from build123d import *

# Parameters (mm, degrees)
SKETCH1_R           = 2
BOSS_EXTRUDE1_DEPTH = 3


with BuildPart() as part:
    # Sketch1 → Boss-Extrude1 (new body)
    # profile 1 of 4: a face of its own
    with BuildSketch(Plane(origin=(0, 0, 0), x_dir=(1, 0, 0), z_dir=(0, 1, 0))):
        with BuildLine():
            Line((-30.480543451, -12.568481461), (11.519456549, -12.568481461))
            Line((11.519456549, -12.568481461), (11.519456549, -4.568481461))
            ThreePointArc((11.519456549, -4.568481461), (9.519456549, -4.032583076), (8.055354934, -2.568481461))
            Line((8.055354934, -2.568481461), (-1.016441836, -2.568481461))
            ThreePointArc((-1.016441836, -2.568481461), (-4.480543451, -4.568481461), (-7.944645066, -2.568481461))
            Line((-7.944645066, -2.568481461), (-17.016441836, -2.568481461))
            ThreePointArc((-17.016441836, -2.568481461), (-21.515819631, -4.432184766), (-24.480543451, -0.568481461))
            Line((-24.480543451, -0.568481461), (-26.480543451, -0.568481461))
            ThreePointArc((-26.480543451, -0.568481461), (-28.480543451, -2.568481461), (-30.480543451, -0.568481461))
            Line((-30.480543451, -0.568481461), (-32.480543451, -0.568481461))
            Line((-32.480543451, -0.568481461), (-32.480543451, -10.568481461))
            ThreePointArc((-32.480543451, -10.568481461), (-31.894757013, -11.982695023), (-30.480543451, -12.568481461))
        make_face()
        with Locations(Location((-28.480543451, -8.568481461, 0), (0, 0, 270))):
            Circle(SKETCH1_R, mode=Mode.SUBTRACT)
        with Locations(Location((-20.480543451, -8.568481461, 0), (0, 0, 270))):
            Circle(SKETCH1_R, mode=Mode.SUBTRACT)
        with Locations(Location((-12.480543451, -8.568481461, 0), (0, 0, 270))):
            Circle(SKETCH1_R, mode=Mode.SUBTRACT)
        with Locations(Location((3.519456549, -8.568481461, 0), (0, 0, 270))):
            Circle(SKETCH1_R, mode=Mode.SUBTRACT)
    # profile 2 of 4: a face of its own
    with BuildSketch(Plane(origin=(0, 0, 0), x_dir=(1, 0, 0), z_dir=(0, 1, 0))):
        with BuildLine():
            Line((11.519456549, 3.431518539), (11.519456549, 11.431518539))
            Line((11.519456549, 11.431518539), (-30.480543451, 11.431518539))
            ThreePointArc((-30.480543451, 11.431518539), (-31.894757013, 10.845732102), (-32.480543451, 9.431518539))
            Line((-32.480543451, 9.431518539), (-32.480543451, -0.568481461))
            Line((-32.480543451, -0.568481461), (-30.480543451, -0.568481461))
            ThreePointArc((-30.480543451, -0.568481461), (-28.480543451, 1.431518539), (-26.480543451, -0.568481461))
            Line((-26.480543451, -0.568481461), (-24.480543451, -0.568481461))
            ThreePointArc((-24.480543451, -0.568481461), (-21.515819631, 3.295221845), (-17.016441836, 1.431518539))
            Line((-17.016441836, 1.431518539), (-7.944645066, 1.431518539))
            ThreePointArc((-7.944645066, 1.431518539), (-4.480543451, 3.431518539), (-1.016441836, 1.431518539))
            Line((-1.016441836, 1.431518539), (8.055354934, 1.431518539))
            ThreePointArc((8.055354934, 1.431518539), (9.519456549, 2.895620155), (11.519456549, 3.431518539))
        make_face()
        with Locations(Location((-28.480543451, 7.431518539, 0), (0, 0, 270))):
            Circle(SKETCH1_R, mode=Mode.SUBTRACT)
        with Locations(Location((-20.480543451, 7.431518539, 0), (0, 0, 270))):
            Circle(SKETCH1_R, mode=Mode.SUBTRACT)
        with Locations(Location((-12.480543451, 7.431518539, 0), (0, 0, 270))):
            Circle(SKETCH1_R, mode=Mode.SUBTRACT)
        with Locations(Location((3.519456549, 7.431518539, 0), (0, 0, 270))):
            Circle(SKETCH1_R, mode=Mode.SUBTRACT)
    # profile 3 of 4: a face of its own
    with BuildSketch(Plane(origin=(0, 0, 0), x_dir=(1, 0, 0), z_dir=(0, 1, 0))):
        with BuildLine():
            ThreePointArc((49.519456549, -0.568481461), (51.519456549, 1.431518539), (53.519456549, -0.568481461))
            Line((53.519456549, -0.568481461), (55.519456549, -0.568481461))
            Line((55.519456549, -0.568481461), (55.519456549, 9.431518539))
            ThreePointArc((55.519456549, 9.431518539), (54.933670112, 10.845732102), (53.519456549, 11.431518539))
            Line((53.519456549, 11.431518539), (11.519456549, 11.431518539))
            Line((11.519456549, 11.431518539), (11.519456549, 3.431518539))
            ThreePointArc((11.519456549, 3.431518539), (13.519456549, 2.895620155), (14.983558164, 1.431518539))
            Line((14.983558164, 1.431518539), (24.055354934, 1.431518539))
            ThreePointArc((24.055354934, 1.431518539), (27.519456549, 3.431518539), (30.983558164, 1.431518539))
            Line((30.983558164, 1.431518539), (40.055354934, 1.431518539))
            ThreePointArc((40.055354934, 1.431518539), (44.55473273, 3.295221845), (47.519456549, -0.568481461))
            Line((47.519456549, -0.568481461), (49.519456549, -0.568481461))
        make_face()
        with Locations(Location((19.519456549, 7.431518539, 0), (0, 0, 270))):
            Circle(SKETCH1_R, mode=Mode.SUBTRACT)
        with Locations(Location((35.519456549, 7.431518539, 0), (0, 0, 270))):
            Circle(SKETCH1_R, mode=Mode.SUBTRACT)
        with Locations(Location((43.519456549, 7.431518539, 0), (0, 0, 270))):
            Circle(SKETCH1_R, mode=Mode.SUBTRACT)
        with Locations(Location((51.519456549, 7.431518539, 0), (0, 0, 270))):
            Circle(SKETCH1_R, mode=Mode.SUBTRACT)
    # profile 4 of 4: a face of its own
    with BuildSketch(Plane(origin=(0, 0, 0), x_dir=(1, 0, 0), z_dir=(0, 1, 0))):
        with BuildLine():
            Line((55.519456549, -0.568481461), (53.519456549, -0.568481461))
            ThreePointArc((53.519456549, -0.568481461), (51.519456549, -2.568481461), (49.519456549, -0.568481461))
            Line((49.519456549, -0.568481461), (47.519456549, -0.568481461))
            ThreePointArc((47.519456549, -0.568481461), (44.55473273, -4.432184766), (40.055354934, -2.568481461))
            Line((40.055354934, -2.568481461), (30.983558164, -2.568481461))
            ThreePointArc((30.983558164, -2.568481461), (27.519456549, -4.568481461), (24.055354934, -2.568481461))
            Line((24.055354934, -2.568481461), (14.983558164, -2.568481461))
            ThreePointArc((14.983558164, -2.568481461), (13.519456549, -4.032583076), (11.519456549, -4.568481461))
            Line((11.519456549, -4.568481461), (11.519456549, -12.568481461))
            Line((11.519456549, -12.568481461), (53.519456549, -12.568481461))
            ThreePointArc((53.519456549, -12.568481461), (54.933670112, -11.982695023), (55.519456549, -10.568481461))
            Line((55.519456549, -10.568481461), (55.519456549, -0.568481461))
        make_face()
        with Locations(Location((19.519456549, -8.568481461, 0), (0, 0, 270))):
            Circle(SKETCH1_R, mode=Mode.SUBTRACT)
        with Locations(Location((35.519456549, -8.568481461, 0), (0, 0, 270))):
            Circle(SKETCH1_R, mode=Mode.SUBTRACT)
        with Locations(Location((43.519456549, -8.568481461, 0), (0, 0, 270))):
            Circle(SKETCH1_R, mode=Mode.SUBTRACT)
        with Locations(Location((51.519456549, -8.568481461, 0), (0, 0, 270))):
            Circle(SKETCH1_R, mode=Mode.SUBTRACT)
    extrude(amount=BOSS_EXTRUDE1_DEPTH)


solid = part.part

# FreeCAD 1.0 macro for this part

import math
import FreeCAD as App
import Part
import Sketcher
from FreeCAD import Vector
Q = App.Units.Quantity

doc = App.newDocument("Part")
body = doc.addObject("PartDesign::Body", "Body")

sketch1 = body.newObject("Sketcher::SketchObject", "Sketch")
sketch1.AttachmentSupport = (doc.getObject("XZ_Plane"), [""])
sketch1.MapMode = "FlatFace"
sketch1.addGeometry([
    Part.LineSegment(Vector(-30.5, 12.6, 0), Vector(53.5, 12.6, 0)),
    Part.ArcOfCircle(Part.Circle(Vector(53.5, 10.6, 0), Vector(0, 0, 1), 2), math.radians(0), math.radians(90)),
    Part.LineSegment(Vector(55.5, 10.6, 0), Vector(55.5, -9.4, 0)),
    Part.ArcOfCircle(Part.Circle(Vector(53.5, -9.4, 0), Vector(0, 0, 1), 2), math.radians(-90), math.radians(0)),
    Part.LineSegment(Vector(53.5, -11.4, 0), Vector(-30.5, -11.4, 0)),
    Part.ArcOfCircle(Part.Circle(Vector(-30.5, -9.4, 0), Vector(0, 0, 1), 2), math.radians(180), math.radians(270)),
    Part.LineSegment(Vector(-32.5, -9.4, 0), Vector(-32.5, 10.6, 0)),
    Part.ArcOfCircle(Part.Circle(Vector(-30.5, 10.6, 0), Vector(0, 0, 1), 2), math.radians(90), math.radians(180)),
    Part.ArcOfCircle(Part.Circle(Vector(11.5, 0.6, 0), Vector(0, 0, 1), 4), math.radians(90), math.radians(150)),
    Part.LineSegment(Vector(8.1, 2.6, 0), Vector(-1, 2.6, 0)),
    Part.ArcOfCircle(Part.Circle(Vector(-4.5, 0.6, 0), Vector(0, 0, 1), 4), math.radians(30), math.radians(150)),
    Part.LineSegment(Vector(-7.9, 2.6, 0), Vector(-17, 2.6, 0)),
    Part.ArcOfCircle(Part.Circle(Vector(-20.5, 0.6, 0), Vector(0, 0, 1), 4), math.radians(30), math.radians(180)),
    Part.ArcOfCircle(Part.Circle(Vector(-20.5, 0.6, 0), Vector(0, 0, 1), 4), math.radians(180), math.radians(330)),
    Part.LineSegment(Vector(-17, -1.4, 0), Vector(-7.9, -1.4, 0)),
    Part.ArcOfCircle(Part.Circle(Vector(-4.5, 0.6, 0), Vector(0, 0, 1), 4), math.radians(-150), math.radians(-30)),
    Part.LineSegment(Vector(-1, -1.4, 0), Vector(8.1, -1.4, 0)),
    Part.ArcOfCircle(Part.Circle(Vector(11.5, 0.6, 0), Vector(0, 0, 1), 4), math.radians(-150), math.radians(-90)),
    Part.ArcOfCircle(Part.Circle(Vector(11.5, 0.6, 0), Vector(0, 0, 1), 4), math.radians(-90), math.radians(-30)),
    Part.LineSegment(Vector(15, -1.4, 0), Vector(24.1, -1.4, 0)),
    Part.ArcOfCircle(Part.Circle(Vector(27.5, 0.6, 0), Vector(0, 0, 1), 4), math.radians(-150), math.radians(-30)),
    Part.LineSegment(Vector(31, -1.4, 0), Vector(40.1, -1.4, 0)),
    Part.ArcOfCircle(Part.Circle(Vector(43.5, 0.6, 0), Vector(0, 0, 1), 4), math.radians(-150), math.radians(0)),
    Part.ArcOfCircle(Part.Circle(Vector(43.5, 0.6, 0), Vector(0, 0, 1), 4), math.radians(0), math.radians(150)),
    Part.LineSegment(Vector(40.1, 2.6, 0), Vector(31, 2.6, 0)),
    Part.ArcOfCircle(Part.Circle(Vector(27.5, 0.6, 0), Vector(0, 0, 1), 4), math.radians(30), math.radians(150)),
    Part.LineSegment(Vector(24.1, 2.6, 0), Vector(15, 2.6, 0)),
    Part.ArcOfCircle(Part.Circle(Vector(11.5, 0.6, 0), Vector(0, 0, 1), 4), math.radians(30), math.radians(90)),
    Part.Circle(Vector(-28.5, 0.6, 0), Vector(0, 0, 1), 2),
    Part.Circle(Vector(-28.5, 8.6, 0), Vector(0, 0, 1), 2),
    Part.Circle(Vector(-20.5, 8.6, 0), Vector(0, 0, 1), 2),
    Part.Circle(Vector(-12.5, 8.6, 0), Vector(0, 0, 1), 2),
    Part.Circle(Vector(3.5, 8.6, 0), Vector(0, 0, 1), 2),
    Part.Circle(Vector(51.5, 0.6, 0), Vector(0, 0, 1), 2),
    Part.Circle(Vector(51.5, 8.6, 0), Vector(0, 0, 1), 2),
    Part.Circle(Vector(19.5, 8.6, 0), Vector(0, 0, 1), 2),
    Part.Circle(Vector(35.5, 8.6, 0), Vector(0, 0, 1), 2),
    Part.Circle(Vector(43.5, 8.6, 0), Vector(0, 0, 1), 2),
    Part.Circle(Vector(3.5, -7.4, 0), Vector(0, 0, 1), 2),
    Part.Circle(Vector(-12.5, -7.4, 0), Vector(0, 0, 1), 2),
    Part.Circle(Vector(-28.5, -7.4, 0), Vector(0, 0, 1), 2),
    Part.Circle(Vector(-20.5, -7.4, 0), Vector(0, 0, 1), 2),
    Part.Circle(Vector(43.5, -7.4, 0), Vector(0, 0, 1), 2),
    Part.Circle(Vector(51.5, -7.4, 0), Vector(0, 0, 1), 2),
    Part.Circle(Vector(35.5, -7.4, 0), Vector(0, 0, 1), 2),
    Part.Circle(Vector(19.5, -7.4, 0), Vector(0, 0, 1), 2),
], False)
sketch1.addConstraint([
    Sketcher.Constraint("Tangent", 0, 2, 1, 2),
    Sketcher.Constraint("Tangent", 1, 1, 2, 1),
    Sketcher.Constraint("Tangent", 2, 2, 3, 2),
    Sketcher.Constraint("Tangent", 3, 1, 4, 1),
    Sketcher.Constraint("Tangent", 4, 2, 5, 2),
    Sketcher.Constraint("Tangent", 5, 1, 6, 1),
    Sketcher.Constraint("Tangent", 6, 2, 7, 2),
    Sketcher.Constraint("Tangent", 7, 1, 0, 1),
    Sketcher.Constraint("Coincident", 8, 2, 9, 1),
    Sketcher.Constraint("Coincident", 9, 2, 10, 1),
    Sketcher.Constraint("Coincident", 10, 2, 11, 1),
    Sketcher.Constraint("Coincident", 11, 2, 12, 1),
    Sketcher.Constraint("Tangent", 12, 2, 13, 1),
    Sketcher.Constraint("Coincident", 13, 2, 14, 1),
    Sketcher.Constraint("Coincident", 14, 2, 15, 1),
    Sketcher.Constraint("Coincident", 15, 2, 16, 1),
    Sketcher.Constraint("Coincident", 16, 2, 17, 1),
    Sketcher.Constraint("Tangent", 17, 2, 18, 1),
    Sketcher.Constraint("Coincident", 18, 2, 19, 1),
    Sketcher.Constraint("Coincident", 19, 2, 20, 1),
    Sketcher.Constraint("Coincident", 20, 2, 21, 1),
    Sketcher.Constraint("Coincident", 21, 2, 22, 1),
    Sketcher.Constraint("Tangent", 22, 2, 23, 1),
    Sketcher.Constraint("Coincident", 23, 2, 24, 1),
    Sketcher.Constraint("Coincident", 24, 2, 25, 1),
    Sketcher.Constraint("Coincident", 25, 2, 26, 1),
    Sketcher.Constraint("Coincident", 26, 2, 27, 1),
    Sketcher.Constraint("Tangent", 27, 2, 8, 1),
    Sketcher.Constraint("Horizontal", 0),
    Sketcher.Constraint("Vertical", 2),
    Sketcher.Constraint("Horizontal", 4),
    Sketcher.Constraint("Vertical", 6),
    Sketcher.Constraint("Horizontal", 9),
    Sketcher.Constraint("Horizontal", 11),
    Sketcher.Constraint("Horizontal", 14),
    Sketcher.Constraint("Horizontal", 16),
    Sketcher.Constraint("Horizontal", 19),
    Sketcher.Constraint("Horizontal", 21),
    Sketcher.Constraint("Horizontal", 24),
    Sketcher.Constraint("Horizontal", 26),
    Sketcher.Constraint("Coincident", 15, 3, 10, 3),
    Sketcher.Constraint("Coincident", 17, 3, 8, 3),
    Sketcher.Constraint("Coincident", 25, 3, 20, 3),
    Sketcher.Constraint("Equal", 1, 3),
    Sketcher.Constraint("Equal", 3, 5),
    Sketcher.Constraint("Equal", 5, 7),
    Sketcher.Constraint("Equal", 8, 10),
    Sketcher.Constraint("Equal", 10, 12),
    Sketcher.Constraint("Equal", 12, 13),
    Sketcher.Constraint("Equal", 13, 15),
    Sketcher.Constraint("Equal", 15, 17),
    Sketcher.Constraint("Equal", 17, 18),
    Sketcher.Constraint("Equal", 18, 20),
    Sketcher.Constraint("Equal", 20, 22),
    Sketcher.Constraint("Equal", 22, 23),
    Sketcher.Constraint("Equal", 23, 25),
    Sketcher.Constraint("Equal", 25, 27),
    Sketcher.Constraint("Equal", 7, 28),
    Sketcher.Constraint("Equal", 28, 29),
    Sketcher.Constraint("Equal", 29, 30),
    Sketcher.Constraint("Equal", 30, 31),
    Sketcher.Constraint("Equal", 31, 32),
    Sketcher.Constraint("Equal", 32, 33),
    Sketcher.Constraint("Equal", 33, 34),
    Sketcher.Constraint("Equal", 34, 35),
    Sketcher.Constraint("Equal", 35, 36),
    Sketcher.Constraint("Equal", 36, 37),
    Sketcher.Constraint("Equal", 37, 38),
    Sketcher.Constraint("Equal", 38, 39),
    Sketcher.Constraint("Equal", 39, 40),
    Sketcher.Constraint("Equal", 40, 41),
    Sketcher.Constraint("Equal", 41, 42),
    Sketcher.Constraint("Equal", 42, 43),
    Sketcher.Constraint("Equal", 43, 44),
    Sketcher.Constraint("Equal", 44, 45),
    Sketcher.Constraint("Horizontal", 8, 3, 10, 3),
    Sketcher.Constraint("Horizontal", 10, 3, 12, 3),
    Sketcher.Constraint("Horizontal", 18, 3, 20, 3),
    Sketcher.Constraint("Horizontal", 20, 3, 22, 3),
    Sketcher.Constraint("Horizontal", 27, 3, 28, 3),
    Sketcher.Constraint("Horizontal", 29, 3, 30, 3),
    Sketcher.Constraint("Horizontal", 30, 3, 31, 3),
    Sketcher.Constraint("Horizontal", 31, 3, 32, 3),
    Sketcher.Constraint("Horizontal", 28, 3, 33, 3),
    Sketcher.Constraint("Horizontal", 32, 3, 34, 3),
    Sketcher.Constraint("Horizontal", 34, 3, 35, 3),
    Sketcher.Constraint("Horizontal", 35, 3, 36, 3),
    Sketcher.Constraint("Horizontal", 36, 3, 37, 3),
    Sketcher.Constraint("Horizontal", 38, 3, 39, 3),
    Sketcher.Constraint("Horizontal", 39, 3, 40, 3),
    Sketcher.Constraint("Horizontal", 40, 3, 41, 3),
    Sketcher.Constraint("Horizontal", 41, 3, 42, 3),
    Sketcher.Constraint("Horizontal", 42, 3, 43, 3),
    Sketcher.Constraint("Horizontal", 43, 3, 44, 3),
    Sketcher.Constraint("Horizontal", 44, 3, 45, 3),
    Sketcher.Constraint("Horizontal", 9, 2, 10, 2),
    Sketcher.Constraint("Horizontal", 33, 3, 12, 2),
    Sketcher.Constraint("Horizontal", 14, 2, 15, 2),
    Sketcher.Constraint("Horizontal", 16, 2, 18, 2),
    Sketcher.Constraint("Horizontal", 19, 2, 20, 2),
    Sketcher.Constraint("Horizontal", 12, 2, 22, 2),
    Sketcher.Constraint("Horizontal", 11, 2, 23, 2),
    Sketcher.Constraint("Horizontal", 24, 2, 25, 2),
    Sketcher.Constraint("Vertical", 28, 3, 29, 3),
    Sketcher.Constraint("Vertical", 13, 3, 30, 3),
    Sketcher.Constraint("Vertical", 33, 3, 34, 3),
    Sketcher.Constraint("Vertical", 23, 3, 37, 3),
    Sketcher.Constraint("Vertical", 32, 3, 38, 3),
    Sketcher.Constraint("Vertical", 31, 3, 39, 3),
    Sketcher.Constraint("Vertical", 29, 3, 40, 3),
    Sketcher.Constraint("Vertical", 30, 3, 41, 3),
    Sketcher.Constraint("Vertical", 37, 3, 42, 3),
    Sketcher.Constraint("Vertical", 34, 3, 43, 3),
    Sketcher.Constraint("Vertical", 36, 3, 44, 3),
    Sketcher.Constraint("Vertical", 35, 3, 45, 3),
    Sketcher.Constraint("Vertical", 11, 2, 13, 2),
    Sketcher.Constraint("Vertical", 27, 3, 17, 2),
    Sketcher.Constraint("Vertical", 17, 2, 27, 2),
    Sketcher.Constraint("Equal", 9, 11),
    Sketcher.Constraint("Equal", 16, 19),
    Sketcher.Constraint("Equal", 19, 21),
    Sketcher.Constraint("Diameter", 28, Q("4 mm")),
    Sketcher.Constraint("Radius", 8, Q("4 mm")),
    Sketcher.Constraint("DistanceX", 0, 1, 0, 2, Q("84 mm")),
    Sketcher.Constraint("DistanceY", 2, 2, 2, 1, Q("20 mm")),
    Sketcher.Constraint("DistanceX", 9, 2, 9, 1, Q("9.071797 mm")),
    Sketcher.Constraint("DistanceY", -1, 1, 1, 3, Q("10.568481 mm")),
    Sketcher.Constraint("DistanceY", -1, 1, 8, 3, Q("0.568481 mm")),
    Sketcher.Constraint("DistanceY", -1, 1, 29, 3, Q("8.568481 mm")),
    Sketcher.Constraint("DistanceY", 38, 3, -1, 1, Q("7.431519 mm")),
    Sketcher.Constraint("DistanceY", -1, 1, 8, 2, Q("2.568481 mm")),
    Sketcher.Constraint("DistanceX", 9, 2, -1, 1, Q("1.016442 mm")),
    Sketcher.Constraint("DistanceX", -1, 1, 1, 3, Q("53.519457 mm")),
    Sketcher.Constraint("DistanceX", 28, 3, -1, 1, Q("28.480543 mm")),
    Sketcher.Constraint("DistanceX", 31, 3, -1, 1, Q("12.480543 mm")),
    Sketcher.Constraint("DistanceX", -1, 1, 32, 3, Q("3.519457 mm")),
    Sketcher.Constraint("DistanceX", -1, 1, 33, 3, Q("51.519457 mm")),
    Sketcher.Constraint("DistanceX", -1, 1, 35, 3, Q("19.519457 mm")),
    Sketcher.Constraint("DistanceX", -1, 1, 36, 3, Q("35.519457 mm")),
])
pad1 = body.newObject("PartDesign::Pad", "Pad")
pad1.Profile = sketch1
pad1.Length = 3
pad1.Reversed = True

doc.recompute()
